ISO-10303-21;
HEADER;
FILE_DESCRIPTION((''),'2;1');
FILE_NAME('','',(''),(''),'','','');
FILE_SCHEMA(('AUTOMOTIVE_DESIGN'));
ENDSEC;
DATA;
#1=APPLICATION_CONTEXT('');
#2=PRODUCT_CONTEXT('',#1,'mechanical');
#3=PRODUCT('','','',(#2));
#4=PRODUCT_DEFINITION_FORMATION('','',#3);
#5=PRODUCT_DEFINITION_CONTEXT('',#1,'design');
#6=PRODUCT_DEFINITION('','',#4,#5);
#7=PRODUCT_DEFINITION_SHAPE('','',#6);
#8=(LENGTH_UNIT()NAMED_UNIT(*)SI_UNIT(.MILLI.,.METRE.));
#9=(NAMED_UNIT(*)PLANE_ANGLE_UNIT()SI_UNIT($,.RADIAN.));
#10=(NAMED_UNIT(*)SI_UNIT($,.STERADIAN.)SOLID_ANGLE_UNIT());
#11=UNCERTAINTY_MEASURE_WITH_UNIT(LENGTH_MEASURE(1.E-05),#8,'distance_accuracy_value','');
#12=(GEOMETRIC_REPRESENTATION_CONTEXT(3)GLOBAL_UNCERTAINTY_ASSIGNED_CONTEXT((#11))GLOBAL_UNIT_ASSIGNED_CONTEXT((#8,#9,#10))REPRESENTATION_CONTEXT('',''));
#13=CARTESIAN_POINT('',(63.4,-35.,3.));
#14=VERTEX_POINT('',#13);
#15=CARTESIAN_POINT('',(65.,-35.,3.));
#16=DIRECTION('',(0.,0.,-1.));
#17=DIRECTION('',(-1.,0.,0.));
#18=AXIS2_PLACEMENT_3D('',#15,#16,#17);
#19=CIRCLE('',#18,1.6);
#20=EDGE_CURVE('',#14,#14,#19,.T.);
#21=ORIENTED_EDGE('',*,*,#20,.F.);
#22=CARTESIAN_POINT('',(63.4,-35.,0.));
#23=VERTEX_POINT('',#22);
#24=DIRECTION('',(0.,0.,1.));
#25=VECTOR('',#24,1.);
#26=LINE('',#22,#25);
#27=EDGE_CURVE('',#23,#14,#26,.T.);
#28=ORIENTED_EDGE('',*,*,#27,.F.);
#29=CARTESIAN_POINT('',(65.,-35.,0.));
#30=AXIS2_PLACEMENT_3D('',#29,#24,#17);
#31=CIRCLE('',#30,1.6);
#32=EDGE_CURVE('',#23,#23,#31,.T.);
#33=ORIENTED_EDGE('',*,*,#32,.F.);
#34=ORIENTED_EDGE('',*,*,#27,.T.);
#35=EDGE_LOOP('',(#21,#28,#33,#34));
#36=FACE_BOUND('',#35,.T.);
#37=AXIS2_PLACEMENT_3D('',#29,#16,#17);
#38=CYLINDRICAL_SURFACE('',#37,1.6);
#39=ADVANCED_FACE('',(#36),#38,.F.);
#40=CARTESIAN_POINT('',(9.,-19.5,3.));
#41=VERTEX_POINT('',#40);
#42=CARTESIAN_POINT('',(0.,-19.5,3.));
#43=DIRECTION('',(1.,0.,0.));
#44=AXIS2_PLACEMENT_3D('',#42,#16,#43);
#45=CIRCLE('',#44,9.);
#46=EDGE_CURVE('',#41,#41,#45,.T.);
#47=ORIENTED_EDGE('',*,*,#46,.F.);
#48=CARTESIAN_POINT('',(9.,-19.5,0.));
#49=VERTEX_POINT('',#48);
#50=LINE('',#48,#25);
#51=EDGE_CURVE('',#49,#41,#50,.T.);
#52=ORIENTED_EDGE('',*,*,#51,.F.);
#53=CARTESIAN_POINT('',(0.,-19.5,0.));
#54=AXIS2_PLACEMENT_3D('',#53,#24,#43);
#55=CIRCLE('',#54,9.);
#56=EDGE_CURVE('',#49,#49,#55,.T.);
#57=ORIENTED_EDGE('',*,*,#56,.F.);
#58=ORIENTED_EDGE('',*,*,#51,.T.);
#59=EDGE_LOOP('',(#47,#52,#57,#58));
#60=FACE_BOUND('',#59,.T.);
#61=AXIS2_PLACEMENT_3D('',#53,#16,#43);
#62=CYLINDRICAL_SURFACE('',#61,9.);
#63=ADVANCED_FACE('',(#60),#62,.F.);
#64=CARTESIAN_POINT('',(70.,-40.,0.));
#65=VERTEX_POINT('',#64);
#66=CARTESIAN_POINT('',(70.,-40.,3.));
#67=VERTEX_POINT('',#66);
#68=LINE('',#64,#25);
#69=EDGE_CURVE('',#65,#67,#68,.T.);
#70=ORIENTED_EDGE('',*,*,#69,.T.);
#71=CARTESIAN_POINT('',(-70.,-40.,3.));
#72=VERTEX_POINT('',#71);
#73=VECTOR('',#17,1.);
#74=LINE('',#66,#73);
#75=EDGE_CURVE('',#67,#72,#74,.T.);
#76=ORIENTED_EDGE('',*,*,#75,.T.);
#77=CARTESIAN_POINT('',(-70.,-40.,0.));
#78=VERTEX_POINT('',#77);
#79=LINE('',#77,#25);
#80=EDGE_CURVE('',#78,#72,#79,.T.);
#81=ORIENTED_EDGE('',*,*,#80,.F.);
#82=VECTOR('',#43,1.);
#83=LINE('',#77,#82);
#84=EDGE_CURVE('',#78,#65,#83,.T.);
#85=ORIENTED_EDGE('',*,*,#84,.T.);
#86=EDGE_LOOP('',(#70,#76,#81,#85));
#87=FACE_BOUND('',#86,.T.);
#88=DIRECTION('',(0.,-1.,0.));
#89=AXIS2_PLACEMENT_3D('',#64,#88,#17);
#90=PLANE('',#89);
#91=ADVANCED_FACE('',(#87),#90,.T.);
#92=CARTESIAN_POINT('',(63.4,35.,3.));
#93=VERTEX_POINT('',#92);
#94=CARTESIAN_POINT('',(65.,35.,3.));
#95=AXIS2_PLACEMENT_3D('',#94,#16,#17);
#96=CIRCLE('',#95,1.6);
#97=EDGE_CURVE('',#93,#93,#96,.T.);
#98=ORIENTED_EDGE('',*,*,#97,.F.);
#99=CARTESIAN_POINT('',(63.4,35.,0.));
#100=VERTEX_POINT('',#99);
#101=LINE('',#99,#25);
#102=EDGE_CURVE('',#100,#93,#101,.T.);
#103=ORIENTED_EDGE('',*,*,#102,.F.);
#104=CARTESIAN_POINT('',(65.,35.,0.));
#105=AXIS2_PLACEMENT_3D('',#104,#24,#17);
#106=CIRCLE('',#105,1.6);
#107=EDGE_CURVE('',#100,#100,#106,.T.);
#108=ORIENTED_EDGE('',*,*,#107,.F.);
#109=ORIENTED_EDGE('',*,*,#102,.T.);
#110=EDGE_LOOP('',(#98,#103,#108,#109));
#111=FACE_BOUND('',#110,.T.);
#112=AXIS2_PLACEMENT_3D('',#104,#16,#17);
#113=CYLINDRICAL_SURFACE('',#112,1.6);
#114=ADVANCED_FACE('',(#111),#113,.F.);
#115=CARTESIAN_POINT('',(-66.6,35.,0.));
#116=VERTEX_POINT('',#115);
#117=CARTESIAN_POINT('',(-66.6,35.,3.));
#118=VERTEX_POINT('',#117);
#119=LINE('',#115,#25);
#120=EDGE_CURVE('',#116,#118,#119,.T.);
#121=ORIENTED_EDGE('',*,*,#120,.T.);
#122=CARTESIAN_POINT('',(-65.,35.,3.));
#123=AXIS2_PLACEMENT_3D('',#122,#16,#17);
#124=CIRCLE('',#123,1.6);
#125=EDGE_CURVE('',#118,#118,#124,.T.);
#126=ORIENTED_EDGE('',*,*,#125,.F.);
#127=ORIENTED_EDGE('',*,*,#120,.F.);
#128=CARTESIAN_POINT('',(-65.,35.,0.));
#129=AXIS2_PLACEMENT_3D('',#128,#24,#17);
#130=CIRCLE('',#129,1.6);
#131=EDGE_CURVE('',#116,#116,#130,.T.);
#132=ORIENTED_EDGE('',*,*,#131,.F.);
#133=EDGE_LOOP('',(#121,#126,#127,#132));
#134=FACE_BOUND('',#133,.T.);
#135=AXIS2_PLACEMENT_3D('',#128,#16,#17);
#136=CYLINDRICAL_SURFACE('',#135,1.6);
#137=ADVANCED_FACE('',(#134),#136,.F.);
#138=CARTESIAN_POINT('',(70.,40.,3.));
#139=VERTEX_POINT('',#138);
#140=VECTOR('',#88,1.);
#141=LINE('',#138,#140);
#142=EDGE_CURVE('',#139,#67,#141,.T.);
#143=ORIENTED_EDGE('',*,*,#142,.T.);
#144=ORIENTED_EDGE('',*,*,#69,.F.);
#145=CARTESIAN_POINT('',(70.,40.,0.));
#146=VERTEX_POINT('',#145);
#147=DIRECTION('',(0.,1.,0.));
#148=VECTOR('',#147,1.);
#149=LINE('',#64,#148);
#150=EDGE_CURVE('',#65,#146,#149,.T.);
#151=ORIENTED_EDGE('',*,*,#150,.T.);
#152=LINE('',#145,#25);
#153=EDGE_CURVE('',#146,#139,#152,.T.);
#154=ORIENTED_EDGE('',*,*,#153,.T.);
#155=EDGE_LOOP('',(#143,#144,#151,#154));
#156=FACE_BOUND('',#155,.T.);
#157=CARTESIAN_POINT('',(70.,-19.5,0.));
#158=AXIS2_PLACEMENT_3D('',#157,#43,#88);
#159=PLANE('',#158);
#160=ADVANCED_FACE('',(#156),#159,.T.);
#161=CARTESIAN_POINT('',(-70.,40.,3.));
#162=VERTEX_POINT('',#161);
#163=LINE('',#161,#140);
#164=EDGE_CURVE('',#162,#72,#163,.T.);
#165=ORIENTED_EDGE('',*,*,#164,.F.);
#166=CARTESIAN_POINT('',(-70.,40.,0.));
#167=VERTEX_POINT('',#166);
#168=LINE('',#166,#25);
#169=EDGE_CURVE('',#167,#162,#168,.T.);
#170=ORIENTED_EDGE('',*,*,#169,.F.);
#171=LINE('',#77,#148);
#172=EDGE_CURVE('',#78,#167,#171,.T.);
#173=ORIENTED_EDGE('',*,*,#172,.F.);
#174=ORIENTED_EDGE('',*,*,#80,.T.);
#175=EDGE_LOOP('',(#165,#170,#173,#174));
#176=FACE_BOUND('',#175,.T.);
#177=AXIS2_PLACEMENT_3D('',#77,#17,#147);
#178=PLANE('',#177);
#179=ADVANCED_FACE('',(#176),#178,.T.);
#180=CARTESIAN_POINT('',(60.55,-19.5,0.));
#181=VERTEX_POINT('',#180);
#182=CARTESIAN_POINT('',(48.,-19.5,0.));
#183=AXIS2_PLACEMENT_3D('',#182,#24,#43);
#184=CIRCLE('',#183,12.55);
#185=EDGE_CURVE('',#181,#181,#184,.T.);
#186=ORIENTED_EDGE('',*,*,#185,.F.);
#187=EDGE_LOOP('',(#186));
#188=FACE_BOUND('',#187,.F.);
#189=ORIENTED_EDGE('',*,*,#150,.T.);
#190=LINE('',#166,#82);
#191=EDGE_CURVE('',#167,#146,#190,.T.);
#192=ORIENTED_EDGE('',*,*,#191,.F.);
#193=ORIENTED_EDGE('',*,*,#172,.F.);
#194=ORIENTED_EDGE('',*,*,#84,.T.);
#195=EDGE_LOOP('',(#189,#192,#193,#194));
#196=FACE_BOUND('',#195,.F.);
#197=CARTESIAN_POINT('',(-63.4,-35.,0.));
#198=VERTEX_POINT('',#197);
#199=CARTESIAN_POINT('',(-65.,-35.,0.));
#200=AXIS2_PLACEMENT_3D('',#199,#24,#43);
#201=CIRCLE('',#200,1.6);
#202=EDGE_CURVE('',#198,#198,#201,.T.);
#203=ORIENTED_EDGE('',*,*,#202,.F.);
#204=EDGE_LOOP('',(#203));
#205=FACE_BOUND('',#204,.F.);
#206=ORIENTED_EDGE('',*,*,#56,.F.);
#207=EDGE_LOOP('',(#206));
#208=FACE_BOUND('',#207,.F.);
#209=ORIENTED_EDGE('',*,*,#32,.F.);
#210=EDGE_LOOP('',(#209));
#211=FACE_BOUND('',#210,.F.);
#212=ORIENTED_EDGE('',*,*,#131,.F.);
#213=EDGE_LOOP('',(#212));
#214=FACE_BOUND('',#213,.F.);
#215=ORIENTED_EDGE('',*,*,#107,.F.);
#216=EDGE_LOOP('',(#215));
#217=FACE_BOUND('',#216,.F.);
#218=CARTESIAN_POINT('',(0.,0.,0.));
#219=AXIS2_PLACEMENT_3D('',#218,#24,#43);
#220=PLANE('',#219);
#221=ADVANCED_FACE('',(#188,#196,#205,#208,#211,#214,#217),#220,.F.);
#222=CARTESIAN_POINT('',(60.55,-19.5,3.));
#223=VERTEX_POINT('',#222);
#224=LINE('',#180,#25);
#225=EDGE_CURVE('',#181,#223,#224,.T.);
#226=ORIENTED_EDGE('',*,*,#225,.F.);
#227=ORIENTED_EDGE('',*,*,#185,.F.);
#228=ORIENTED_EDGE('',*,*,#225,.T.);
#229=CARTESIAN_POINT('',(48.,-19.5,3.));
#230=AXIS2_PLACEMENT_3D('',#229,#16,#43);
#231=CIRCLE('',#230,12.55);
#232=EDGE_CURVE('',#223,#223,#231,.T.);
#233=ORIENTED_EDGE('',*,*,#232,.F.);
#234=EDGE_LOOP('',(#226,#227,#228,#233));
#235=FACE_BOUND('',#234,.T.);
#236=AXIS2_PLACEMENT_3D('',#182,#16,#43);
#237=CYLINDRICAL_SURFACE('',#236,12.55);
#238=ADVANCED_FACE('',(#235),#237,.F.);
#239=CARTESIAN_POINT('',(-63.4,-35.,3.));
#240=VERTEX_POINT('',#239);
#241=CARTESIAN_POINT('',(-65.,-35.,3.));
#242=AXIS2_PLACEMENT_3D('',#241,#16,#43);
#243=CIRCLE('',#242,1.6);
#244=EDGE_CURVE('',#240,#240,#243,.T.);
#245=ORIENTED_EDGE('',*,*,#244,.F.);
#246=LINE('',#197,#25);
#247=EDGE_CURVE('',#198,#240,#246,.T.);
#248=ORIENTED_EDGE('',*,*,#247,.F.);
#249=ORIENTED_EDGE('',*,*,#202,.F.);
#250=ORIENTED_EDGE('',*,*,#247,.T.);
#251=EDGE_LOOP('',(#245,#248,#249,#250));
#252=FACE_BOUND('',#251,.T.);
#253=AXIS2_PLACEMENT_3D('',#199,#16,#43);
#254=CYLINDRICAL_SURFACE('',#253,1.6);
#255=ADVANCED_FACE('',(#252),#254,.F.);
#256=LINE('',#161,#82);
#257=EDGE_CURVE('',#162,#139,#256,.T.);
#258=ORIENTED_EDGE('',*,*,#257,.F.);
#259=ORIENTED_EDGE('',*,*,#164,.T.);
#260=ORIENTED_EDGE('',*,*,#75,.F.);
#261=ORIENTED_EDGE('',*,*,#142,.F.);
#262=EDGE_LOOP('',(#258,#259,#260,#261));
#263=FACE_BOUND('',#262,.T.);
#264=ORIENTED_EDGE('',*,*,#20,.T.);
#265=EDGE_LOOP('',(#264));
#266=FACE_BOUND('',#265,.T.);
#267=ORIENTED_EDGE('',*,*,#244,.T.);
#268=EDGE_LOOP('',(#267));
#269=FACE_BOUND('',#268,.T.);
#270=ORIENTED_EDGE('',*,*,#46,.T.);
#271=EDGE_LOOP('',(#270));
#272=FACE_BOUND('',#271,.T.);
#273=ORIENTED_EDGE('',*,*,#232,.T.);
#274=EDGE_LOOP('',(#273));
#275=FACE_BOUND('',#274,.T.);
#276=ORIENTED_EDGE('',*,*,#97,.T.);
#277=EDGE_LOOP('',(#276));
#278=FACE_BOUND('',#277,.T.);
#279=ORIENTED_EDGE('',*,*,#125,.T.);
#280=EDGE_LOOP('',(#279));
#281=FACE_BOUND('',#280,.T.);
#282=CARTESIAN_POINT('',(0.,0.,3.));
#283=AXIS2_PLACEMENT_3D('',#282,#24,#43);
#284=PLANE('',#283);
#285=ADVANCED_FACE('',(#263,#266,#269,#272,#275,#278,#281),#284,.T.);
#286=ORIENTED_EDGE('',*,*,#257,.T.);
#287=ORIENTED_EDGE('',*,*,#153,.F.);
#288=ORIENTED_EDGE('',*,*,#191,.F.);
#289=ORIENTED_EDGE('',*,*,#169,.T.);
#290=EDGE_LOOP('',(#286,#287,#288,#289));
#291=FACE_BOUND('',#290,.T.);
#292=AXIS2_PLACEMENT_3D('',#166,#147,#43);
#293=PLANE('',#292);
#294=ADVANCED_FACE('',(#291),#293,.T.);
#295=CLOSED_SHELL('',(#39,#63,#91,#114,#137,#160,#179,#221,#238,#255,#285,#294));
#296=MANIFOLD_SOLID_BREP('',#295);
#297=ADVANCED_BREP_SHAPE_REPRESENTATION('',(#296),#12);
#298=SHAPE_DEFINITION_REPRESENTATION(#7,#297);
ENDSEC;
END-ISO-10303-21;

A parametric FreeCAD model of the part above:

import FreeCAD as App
import Part
import Sketcher

V = App.Vector
Q = App.Units.Quantity


def add_polygon(sketch, points):
    """Adds a closed chain of lines whose ends are joined by coincident constraints."""
    first, n = sketch.GeometryCount, len(points)
    for a, b in zip(points, points[1:] + points[:1]):
        sketch.addGeometry(Part.LineSegment(App.Vector(*a, 0), App.Vector(*b, 0)), False)
    for i in range(n):
        sketch.addConstraint(Sketcher.Constraint("Coincident", first + i, 2, first + (i + 1) % n, 1))

doc = App.newDocument("Part")
body = doc.addObject("PartDesign::Body", "Body")

sketch1 = body.newObject("Sketcher::SketchObject", "Sketch")
sketch1.AttachmentSupport = (doc.getObject("XY_Plane"), [""])
sketch1.MapMode = "FlatFace"
add_polygon(sketch1, [(70, -40), (70, 40), (-70, 40), (-70, -40)])
sketch1.addGeometry(Part.Circle(V(65, -35, 0), V(0, 0, 1), 1.6), False)
sketch1.addGeometry(Part.Circle(V(-65, -35, 0), V(0, 0, 1), 1.6), False)
sketch1.addGeometry(Part.Circle(V(0, -19.5, 0), V(0, 0, 1), 9), False)
sketch1.addGeometry(Part.Circle(V(48, -19.5, 0), V(0, 0, 1), 12.6), False)
sketch1.addGeometry(Part.Circle(V(65, 35, 0), V(0, 0, 1), 1.6), False)
sketch1.addGeometry(Part.Circle(V(-65, 35, 0), V(0, 0, 1), 1.6), False)
sketch1.addConstraint(Sketcher.Constraint("Vertical", 0))
sketch1.addConstraint(Sketcher.Constraint("Horizontal", 1))
sketch1.addConstraint(Sketcher.Constraint("Vertical", 2))
sketch1.addConstraint(Sketcher.Constraint("Horizontal", 3))
sketch1.addConstraint(Sketcher.Constraint("Equal", 4, 5))
sketch1.addConstraint(Sketcher.Constraint("Equal", 5, 8))
sketch1.addConstraint(Sketcher.Constraint("Equal", 8, 9))
sketch1.addConstraint(Sketcher.Constraint("Symmetric", 5, 3, 8, 3, -1, 1))
sketch1.addConstraint(Sketcher.Constraint("Symmetric", 4, 3, 9, 3, -1, 1))
sketch1.addConstraint(Sketcher.Constraint("Symmetric", 0, 2, 2, 2, -1, 1))
sketch1.addConstraint(Sketcher.Constraint("Symmetric", 4, 3, 5, 3, -2))
sketch1.addConstraint(Sketcher.Constraint("PointOnObject", 6, 3, -2))
sketch1.addConstraint(Sketcher.Constraint("Horizontal", 6, 3, 7, 3))
sketch1.addConstraint(Sketcher.Constraint("Diameter", 6, Q("18 mm")))
sketch1.addConstraint(Sketcher.Constraint("Diameter", 4, Q("3.2 mm")))
sketch1.addConstraint(Sketcher.Constraint("Diameter", 7, Q("25.1 mm")))
sketch1.addConstraint(Sketcher.Constraint("DistanceX", 1, 2, 1, 1, Q("140 mm")))
sketch1.addConstraint(Sketcher.Constraint("DistanceY", 0, 1, 0, 2, Q("80 mm")))
sketch1.addConstraint(Sketcher.Constraint("DistanceY", 4, 3, -1, 1, Q("35 mm")))
sketch1.addConstraint(Sketcher.Constraint("DistanceX", -1, 1, 7, 3, Q("48 mm")))
sketch1.addConstraint(Sketcher.Constraint("DistanceX", 8, 3, 0, 2, Q("5 mm")))
sketch1.addConstraint(Sketcher.Constraint("DistanceY", 2, 2, 6, 3, Q("20.5 mm")))
pad1 = body.newObject("PartDesign::Pad", "Pad")
pad1.Profile = sketch1
pad1.Length = 3

doc.recompute()
